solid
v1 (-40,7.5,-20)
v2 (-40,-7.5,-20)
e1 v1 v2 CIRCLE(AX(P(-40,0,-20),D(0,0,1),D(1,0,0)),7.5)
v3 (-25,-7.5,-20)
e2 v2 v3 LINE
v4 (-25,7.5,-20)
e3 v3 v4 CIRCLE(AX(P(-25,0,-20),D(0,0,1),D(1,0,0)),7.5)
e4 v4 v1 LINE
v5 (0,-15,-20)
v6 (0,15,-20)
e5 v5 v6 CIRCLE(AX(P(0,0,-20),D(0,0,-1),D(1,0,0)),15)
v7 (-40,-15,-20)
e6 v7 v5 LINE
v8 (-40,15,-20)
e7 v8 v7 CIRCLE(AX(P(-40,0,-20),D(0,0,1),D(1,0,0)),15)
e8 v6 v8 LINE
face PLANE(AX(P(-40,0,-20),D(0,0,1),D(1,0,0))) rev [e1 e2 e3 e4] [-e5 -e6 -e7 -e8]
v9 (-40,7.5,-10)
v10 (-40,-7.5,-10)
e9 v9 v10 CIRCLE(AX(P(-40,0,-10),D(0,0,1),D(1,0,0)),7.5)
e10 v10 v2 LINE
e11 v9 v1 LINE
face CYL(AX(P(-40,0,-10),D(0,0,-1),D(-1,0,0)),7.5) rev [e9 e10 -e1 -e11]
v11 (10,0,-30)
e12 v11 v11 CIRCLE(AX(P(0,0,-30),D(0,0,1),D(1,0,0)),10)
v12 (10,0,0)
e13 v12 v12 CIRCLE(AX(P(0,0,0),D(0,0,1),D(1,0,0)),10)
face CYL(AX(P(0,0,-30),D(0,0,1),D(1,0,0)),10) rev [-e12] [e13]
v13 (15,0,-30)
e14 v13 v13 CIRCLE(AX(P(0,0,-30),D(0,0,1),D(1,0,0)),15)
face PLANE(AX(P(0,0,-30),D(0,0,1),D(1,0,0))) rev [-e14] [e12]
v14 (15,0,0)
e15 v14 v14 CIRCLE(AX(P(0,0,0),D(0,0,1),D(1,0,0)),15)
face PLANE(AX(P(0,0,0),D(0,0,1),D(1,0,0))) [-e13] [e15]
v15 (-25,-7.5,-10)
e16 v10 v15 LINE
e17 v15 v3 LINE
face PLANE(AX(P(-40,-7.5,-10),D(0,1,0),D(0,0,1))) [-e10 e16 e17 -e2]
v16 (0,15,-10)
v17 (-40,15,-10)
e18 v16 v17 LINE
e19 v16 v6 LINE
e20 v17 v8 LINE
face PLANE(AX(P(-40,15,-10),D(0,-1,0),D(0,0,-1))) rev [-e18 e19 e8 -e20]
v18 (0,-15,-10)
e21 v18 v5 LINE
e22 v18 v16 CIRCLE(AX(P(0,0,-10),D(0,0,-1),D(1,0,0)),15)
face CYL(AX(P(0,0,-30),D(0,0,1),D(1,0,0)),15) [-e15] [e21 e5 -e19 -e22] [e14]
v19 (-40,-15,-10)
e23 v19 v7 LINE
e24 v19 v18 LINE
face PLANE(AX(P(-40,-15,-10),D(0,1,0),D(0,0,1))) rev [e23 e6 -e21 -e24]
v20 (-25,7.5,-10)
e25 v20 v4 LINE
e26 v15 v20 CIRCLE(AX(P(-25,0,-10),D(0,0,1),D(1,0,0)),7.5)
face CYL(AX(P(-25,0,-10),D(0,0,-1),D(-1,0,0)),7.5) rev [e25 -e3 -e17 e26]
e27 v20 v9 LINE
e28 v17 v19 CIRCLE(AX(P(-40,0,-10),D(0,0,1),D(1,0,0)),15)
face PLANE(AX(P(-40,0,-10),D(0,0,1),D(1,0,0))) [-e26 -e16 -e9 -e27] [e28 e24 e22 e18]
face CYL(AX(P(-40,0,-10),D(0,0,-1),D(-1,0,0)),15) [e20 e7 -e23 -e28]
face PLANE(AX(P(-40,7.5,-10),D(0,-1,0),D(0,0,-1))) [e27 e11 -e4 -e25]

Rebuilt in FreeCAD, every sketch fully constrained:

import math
import FreeCAD as App
import Part
import Sketcher
from FreeCAD import Vector

doc = App.newDocument("Part")
body = doc.addObject("PartDesign::Body", "Body")

# Sketch on XY plane
sketch1 = body.newObject("Sketcher::SketchObject", "Sketch")
sketch1.AttachmentSupport = (doc.getObject("XY_Plane"), [""])
sketch1.MapMode = "FlatFace"
sketch1.addGeometry(Part.Circle(Vector(0, 0, 0), Vector(0, 0, 1), 15), False)
sketch1.addGeometry(Part.Circle(Vector(0, 0, 0), Vector(0, 0, 1), 10), False)
sketch1.addConstraint(Sketcher.Constraint("Coincident", 0, 3, -1, 1))
sketch1.addConstraint(Sketcher.Constraint("Coincident", 1, 3, -1, 1))
sketch1.addConstraint(Sketcher.Constraint("Diameter", 0, 30.0))
sketch1.addConstraint(Sketcher.Constraint("Diameter", 1, 20.0))
pad1 = body.newObject("PartDesign::Pad", "Pad")
pad1.Profile = sketch1
pad1.Length = 30
pad1.Reversed = True

# Sketch on XY plane
sketch2 = body.newObject("Sketcher::SketchObject", "Sketch001")
sketch2.AttachmentSupport = (doc.getObject("XY_Plane"), [""])
sketch2.MapMode = "FlatFace"
sketch2.AttachmentOffset = App.Placement(Vector(0, 0, -15), App.Rotation())
sketch2.addGeometry(Part.LineSegment(Vector(0, 15, 0), Vector(-40, 15, 0)), False)
sketch2.addGeometry(Part.ArcOfCircle(Part.Circle(Vector(-40, 0, 0), Vector(0, 0, 1), 15), math.radians(90), math.radians(270)), False)
sketch2.addGeometry(Part.LineSegment(Vector(-40, -15, 0), Vector(0, -15, 0)), False)
sketch2.addGeometry(Part.ArcOfCircle(Part.Circle(Vector(0, 0, 0), Vector(0, 0, 1), 15), math.radians(90), math.radians(270)), False)
sketch2.addGeometry(Part.LineSegment(Vector(-40, 8, 0), Vector(-25, 8, 0)), False)
sketch2.addGeometry(Part.ArcOfCircle(Part.Circle(Vector(-25, 0, 0), Vector(0, 0, 1), 8), math.radians(-90), math.radians(90)), False)
sketch2.addGeometry(Part.LineSegment(Vector(-25, -8, 0), Vector(-40, -8, 0)), False)
sketch2.addGeometry(Part.ArcOfCircle(Part.Circle(Vector(-40, 0, 0), Vector(0, 0, 1), 8), math.radians(90), math.radians(270)), False)
sketch2.addConstraint(Sketcher.Constraint("Tangent", 0, 2, 1, 1))
sketch2.addConstraint(Sketcher.Constraint("Tangent", 1, 2, 2, 1))
sketch2.addConstraint(Sketcher.Constraint("Tangent", 2, 2, 3, 2))
sketch2.addConstraint(Sketcher.Constraint("Tangent", 3, 1, 0, 1))
sketch2.addConstraint(Sketcher.Constraint("Tangent", 4, 2, 5, 2))
sketch2.addConstraint(Sketcher.Constraint("Tangent", 5, 1, 6, 1))
sketch2.addConstraint(Sketcher.Constraint("Tangent", 6, 2, 7, 2))
sketch2.addConstraint(Sketcher.Constraint("Tangent", 7, 1, 4, 1))
sketch2.addConstraint(Sketcher.Constraint("Horizontal", 0))
sketch2.addConstraint(Sketcher.Constraint("Horizontal", 2))
sketch2.addConstraint(Sketcher.Constraint("Horizontal", 4))
sketch2.addConstraint(Sketcher.Constraint("Horizontal", 6))
sketch2.addConstraint(Sketcher.Constraint("Coincident", 3, 3, -1, 1))
sketch2.addConstraint(Sketcher.Constraint("Coincident", 7, 3, 1, 3))
sketch2.addConstraint(Sketcher.Constraint("Radius", 1, 15.0))
sketch2.addConstraint(Sketcher.Constraint("Radius", 5, 7.5))
sketch2.addConstraint(Sketcher.Constraint("DistanceX", 0, 2, 0, 1, 40.0))
sketch2.addConstraint(Sketcher.Constraint("DistanceX", 4, 1, 4, 2, 15.0))
pad2 = body.newObject("PartDesign::Pad", "Pad001")
pad2.Profile = sketch2
pad2.Length = 10
pad2.Midplane = True

doc.recompute()
